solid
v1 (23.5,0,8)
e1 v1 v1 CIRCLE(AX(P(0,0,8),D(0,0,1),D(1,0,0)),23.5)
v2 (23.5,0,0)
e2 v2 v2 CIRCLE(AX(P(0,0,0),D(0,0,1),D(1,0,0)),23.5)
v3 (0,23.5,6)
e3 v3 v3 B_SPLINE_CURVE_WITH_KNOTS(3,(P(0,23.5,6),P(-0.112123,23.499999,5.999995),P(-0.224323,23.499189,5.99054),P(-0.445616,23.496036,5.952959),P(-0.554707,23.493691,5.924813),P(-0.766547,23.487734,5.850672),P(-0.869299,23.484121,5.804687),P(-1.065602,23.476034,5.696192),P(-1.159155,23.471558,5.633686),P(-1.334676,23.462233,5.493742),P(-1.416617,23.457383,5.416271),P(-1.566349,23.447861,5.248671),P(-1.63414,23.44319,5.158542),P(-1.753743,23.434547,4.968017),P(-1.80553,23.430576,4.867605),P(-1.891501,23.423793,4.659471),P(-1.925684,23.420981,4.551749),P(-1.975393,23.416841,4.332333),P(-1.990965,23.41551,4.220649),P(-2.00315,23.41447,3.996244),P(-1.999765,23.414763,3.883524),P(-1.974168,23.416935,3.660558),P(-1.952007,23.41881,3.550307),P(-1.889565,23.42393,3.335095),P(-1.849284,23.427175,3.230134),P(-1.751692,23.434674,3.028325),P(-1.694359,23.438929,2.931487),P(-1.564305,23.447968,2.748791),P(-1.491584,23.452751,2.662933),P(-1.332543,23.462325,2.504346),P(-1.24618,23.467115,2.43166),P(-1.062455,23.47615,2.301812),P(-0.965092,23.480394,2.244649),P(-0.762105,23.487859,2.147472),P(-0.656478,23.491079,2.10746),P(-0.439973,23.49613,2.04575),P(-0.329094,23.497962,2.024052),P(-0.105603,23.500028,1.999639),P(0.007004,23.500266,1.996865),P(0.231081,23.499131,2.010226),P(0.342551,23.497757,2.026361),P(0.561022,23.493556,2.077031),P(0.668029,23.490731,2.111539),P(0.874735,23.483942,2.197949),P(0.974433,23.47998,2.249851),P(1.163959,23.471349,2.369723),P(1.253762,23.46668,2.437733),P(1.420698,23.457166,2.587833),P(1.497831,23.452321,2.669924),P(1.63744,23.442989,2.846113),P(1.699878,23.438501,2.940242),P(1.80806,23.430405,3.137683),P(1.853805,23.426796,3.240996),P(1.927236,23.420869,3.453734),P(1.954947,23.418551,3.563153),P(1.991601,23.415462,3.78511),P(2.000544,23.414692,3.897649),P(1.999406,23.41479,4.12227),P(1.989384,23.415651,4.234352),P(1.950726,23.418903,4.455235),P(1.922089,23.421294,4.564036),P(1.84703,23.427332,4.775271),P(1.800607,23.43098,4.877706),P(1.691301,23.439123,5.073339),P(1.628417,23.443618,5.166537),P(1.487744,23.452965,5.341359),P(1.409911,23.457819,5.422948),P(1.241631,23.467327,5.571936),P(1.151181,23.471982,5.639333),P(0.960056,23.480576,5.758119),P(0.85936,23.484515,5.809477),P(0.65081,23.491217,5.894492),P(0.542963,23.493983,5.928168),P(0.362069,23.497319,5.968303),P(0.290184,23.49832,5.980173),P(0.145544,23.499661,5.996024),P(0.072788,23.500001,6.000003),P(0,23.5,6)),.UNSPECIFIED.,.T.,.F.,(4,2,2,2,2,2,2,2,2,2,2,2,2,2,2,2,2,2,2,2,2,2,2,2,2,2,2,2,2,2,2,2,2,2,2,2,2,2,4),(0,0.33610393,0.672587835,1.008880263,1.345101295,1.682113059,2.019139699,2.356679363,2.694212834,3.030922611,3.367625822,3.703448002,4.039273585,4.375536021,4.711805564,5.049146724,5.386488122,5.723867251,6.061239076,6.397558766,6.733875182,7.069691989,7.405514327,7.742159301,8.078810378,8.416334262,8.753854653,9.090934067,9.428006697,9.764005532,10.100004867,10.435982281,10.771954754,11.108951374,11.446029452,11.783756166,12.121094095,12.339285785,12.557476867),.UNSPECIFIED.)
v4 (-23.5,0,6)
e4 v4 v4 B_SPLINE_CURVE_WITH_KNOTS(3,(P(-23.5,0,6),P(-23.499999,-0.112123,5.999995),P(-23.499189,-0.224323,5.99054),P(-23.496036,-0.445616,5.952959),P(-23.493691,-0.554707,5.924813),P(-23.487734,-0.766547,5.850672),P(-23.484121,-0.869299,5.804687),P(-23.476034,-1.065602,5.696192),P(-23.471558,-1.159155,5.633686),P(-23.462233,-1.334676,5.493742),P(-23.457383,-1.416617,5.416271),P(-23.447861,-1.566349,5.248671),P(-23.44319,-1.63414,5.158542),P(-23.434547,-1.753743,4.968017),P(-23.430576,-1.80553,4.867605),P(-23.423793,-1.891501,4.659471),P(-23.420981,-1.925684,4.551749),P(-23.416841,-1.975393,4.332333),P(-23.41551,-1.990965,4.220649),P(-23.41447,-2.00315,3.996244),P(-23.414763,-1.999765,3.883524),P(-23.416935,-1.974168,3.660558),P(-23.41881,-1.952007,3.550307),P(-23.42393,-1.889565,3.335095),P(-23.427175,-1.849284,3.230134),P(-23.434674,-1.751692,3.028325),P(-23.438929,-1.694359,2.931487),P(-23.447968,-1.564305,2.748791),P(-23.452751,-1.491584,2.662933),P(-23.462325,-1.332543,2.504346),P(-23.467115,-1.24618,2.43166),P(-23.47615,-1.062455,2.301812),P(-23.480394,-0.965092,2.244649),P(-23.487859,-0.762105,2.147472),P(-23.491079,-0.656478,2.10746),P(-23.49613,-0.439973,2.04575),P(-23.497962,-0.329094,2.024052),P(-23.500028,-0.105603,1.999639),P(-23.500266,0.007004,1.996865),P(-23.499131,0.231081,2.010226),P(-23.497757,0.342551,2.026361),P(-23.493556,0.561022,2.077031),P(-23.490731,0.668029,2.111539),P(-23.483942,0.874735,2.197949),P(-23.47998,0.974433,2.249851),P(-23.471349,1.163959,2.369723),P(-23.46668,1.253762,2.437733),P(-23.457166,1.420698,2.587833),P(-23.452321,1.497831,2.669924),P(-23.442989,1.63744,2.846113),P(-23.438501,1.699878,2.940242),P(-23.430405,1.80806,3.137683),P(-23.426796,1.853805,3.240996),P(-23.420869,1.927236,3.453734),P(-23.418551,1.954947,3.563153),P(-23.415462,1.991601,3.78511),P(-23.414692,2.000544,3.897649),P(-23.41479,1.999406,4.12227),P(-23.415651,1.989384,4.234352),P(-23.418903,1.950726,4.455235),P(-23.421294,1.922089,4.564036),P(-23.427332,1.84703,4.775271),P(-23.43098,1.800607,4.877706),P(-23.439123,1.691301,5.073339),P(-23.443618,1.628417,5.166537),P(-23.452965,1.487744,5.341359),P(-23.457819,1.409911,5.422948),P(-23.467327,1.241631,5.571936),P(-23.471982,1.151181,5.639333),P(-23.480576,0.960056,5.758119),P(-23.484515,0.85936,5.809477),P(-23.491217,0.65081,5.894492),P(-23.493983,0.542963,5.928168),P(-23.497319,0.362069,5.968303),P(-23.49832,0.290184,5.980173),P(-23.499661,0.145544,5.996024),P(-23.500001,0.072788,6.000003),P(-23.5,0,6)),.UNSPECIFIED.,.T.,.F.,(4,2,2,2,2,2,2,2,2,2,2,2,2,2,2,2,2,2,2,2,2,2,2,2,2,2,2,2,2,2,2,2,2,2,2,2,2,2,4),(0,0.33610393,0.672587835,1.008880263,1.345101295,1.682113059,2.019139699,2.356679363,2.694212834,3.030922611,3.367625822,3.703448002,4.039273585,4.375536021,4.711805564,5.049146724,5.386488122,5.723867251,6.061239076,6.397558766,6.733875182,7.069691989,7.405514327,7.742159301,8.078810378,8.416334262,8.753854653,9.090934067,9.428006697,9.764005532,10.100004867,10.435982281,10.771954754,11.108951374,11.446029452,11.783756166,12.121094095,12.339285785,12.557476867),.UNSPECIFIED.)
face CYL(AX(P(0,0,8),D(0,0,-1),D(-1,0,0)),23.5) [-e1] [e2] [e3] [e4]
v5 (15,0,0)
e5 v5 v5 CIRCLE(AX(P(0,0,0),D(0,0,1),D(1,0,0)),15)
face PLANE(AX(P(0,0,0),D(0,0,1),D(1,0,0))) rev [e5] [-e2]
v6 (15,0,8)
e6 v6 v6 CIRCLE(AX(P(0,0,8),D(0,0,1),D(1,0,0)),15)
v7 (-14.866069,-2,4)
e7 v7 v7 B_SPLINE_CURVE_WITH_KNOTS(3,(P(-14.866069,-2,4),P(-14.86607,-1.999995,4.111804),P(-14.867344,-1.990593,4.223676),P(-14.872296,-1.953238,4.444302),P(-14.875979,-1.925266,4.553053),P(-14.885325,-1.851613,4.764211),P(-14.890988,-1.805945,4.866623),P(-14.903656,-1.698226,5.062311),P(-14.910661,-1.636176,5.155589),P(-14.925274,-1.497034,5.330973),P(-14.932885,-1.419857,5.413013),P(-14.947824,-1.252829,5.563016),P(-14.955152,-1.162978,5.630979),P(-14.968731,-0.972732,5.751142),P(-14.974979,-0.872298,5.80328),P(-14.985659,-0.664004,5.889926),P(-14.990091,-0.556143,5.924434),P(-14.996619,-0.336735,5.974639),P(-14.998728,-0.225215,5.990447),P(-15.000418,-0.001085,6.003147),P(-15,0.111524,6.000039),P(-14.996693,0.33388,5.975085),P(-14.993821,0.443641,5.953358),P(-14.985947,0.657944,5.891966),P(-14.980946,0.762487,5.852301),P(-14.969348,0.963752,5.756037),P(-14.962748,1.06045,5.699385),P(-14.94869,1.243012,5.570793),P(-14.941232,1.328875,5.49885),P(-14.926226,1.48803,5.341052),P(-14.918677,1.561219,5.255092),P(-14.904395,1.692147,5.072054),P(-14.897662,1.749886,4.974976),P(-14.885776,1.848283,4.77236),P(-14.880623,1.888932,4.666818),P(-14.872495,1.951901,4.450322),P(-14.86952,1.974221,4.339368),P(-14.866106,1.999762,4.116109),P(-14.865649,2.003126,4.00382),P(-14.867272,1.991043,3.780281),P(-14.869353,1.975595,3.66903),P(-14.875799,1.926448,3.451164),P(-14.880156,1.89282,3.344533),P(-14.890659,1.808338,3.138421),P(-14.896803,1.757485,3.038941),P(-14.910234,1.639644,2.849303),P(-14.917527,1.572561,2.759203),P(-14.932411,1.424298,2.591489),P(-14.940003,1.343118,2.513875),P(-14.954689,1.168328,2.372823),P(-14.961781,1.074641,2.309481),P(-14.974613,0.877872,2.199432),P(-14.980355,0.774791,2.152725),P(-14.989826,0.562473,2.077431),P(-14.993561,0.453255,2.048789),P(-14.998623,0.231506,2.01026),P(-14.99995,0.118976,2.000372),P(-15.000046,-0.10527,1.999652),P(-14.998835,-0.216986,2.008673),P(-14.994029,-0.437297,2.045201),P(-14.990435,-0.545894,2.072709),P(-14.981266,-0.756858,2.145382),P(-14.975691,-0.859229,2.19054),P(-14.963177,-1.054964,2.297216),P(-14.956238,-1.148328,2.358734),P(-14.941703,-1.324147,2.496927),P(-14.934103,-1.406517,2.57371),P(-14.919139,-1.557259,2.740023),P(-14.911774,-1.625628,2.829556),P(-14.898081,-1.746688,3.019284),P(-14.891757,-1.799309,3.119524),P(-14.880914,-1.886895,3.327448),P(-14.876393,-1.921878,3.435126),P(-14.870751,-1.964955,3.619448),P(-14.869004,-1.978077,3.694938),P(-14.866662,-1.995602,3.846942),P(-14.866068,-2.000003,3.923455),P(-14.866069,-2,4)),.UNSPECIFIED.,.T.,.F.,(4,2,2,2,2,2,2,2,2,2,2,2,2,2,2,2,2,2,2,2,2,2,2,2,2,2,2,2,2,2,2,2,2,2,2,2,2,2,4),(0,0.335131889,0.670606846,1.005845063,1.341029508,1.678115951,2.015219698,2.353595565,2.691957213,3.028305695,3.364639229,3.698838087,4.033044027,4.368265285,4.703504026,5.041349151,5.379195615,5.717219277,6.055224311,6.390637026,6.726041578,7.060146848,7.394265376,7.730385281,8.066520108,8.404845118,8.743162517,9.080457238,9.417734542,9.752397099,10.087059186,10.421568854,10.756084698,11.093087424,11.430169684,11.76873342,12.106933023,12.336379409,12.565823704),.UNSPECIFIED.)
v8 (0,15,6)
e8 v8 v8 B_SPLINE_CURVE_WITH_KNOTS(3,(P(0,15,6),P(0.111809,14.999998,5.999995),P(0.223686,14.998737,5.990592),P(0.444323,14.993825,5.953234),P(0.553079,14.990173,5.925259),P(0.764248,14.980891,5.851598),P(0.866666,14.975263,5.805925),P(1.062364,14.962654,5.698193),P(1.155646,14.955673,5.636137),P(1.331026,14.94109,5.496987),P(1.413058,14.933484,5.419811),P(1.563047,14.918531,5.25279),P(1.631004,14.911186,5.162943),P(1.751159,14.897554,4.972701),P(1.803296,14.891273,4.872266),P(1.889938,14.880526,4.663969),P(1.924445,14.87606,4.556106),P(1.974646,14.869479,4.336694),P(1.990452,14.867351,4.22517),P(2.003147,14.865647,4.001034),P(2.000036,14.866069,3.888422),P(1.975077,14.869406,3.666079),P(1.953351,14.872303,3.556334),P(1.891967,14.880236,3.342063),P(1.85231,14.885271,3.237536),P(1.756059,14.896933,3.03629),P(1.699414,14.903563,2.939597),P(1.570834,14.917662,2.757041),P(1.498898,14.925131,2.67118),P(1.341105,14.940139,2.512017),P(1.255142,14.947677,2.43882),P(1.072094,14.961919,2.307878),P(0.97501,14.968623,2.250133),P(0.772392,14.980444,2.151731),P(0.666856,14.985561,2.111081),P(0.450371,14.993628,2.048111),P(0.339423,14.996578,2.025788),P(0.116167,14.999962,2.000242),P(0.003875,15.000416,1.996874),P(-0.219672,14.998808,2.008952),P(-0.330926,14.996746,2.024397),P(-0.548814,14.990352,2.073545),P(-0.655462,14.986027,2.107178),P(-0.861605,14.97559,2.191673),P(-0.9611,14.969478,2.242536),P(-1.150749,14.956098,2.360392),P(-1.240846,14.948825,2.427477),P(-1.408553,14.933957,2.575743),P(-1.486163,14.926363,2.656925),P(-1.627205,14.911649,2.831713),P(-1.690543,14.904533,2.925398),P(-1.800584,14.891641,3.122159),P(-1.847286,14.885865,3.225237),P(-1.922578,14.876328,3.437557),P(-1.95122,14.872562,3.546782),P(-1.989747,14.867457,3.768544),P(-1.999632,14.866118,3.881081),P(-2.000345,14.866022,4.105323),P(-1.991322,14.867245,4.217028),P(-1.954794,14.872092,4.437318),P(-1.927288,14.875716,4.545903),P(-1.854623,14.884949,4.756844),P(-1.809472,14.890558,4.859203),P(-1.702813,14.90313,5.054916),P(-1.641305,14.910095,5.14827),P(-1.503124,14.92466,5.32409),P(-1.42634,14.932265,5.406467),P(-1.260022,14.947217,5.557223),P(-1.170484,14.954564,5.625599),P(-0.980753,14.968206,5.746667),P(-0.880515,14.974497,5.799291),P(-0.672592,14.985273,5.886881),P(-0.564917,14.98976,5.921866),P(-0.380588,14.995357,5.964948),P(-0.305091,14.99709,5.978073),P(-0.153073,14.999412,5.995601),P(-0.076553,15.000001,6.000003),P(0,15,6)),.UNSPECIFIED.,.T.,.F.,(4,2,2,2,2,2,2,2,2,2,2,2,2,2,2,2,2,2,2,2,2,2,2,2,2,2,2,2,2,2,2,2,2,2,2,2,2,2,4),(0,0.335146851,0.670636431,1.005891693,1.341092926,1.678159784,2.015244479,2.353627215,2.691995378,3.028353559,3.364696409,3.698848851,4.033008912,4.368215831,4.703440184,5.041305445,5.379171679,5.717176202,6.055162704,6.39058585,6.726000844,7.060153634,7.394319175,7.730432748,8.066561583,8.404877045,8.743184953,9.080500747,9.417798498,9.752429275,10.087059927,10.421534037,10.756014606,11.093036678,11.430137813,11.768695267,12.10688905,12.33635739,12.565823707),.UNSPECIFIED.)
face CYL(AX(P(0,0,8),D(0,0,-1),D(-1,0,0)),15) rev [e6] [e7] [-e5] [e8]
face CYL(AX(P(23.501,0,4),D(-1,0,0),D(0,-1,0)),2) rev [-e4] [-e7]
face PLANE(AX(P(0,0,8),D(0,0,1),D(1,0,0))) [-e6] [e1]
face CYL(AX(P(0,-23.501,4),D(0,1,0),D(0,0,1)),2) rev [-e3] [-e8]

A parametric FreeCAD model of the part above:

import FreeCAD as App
import Part
import Sketcher
Q = App.Units.Quantity

doc = App.newDocument("Part")
body = doc.addObject("PartDesign::Body", "Body")

# Sketch on XY plane
sketch1 = body.newObject("Sketcher::SketchObject", "Sketch")
sketch1.AttachmentSupport = (doc.getObject("XY_Plane"), [""])
sketch1.MapMode = "FlatFace"
sketch1.addGeometry(Part.Circle(App.Vector(0, 0, 0), App.Vector(0, 0, 1), 23.5), False)
sketch1.addGeometry(Part.Circle(App.Vector(0, 0, 0), App.Vector(0, 0, 1), 15), False)
sketch1.addConstraint(Sketcher.Constraint("Coincident", 0, 3, -1, 1))
sketch1.addConstraint(Sketcher.Constraint("Coincident", 1, 3, -1, 1))
sketch1.addConstraint(Sketcher.Constraint("Diameter", 0, Q("47 mm")))
sketch1.addConstraint(Sketcher.Constraint("Diameter", 1, Q("30 mm")))
pad1 = body.newObject("PartDesign::Pad", "Pad")
pad1.Profile = sketch1
pad1.Length = 8

# Sketch on XZ plane
sketch2 = body.newObject("Sketcher::SketchObject", "Sketch001")
sketch2.AttachmentSupport = (doc.getObject("XZ_Plane"), [""])
sketch2.MapMode = "FlatFace"
sketch2.AttachmentOffset = App.Placement(App.Vector(0, 0, -14.866069), App.Rotation())
sketch2.addGeometry(Part.Circle(App.Vector(0, 4, 0), App.Vector(0, 0, 1), 2), False)
sketch2.addConstraint(Sketcher.Constraint("PointOnObject", 0, 3, -2))
sketch2.addConstraint(Sketcher.Constraint("Diameter", 0, Q("4 mm")))
sketch2.addConstraint(Sketcher.Constraint("DistanceY", -1, 1, 0, 3, Q("4 mm")))
pocket1 = body.newObject("PartDesign::Pocket", "Pocket")
pocket1.Profile = sketch2
pocket1.Length = 8.633931
doc.recompute()

polarpattern = body.newObject("PartDesign::PolarPattern", "PolarPattern")
polarpattern.Originals = [pocket1]
polarpattern.Axis = (doc.getObject("Z_Axis"), [""])
polarpattern.Angle = 90
polarpattern.Occurrences = 2
body.Tip = polarpattern

doc.recompute()
